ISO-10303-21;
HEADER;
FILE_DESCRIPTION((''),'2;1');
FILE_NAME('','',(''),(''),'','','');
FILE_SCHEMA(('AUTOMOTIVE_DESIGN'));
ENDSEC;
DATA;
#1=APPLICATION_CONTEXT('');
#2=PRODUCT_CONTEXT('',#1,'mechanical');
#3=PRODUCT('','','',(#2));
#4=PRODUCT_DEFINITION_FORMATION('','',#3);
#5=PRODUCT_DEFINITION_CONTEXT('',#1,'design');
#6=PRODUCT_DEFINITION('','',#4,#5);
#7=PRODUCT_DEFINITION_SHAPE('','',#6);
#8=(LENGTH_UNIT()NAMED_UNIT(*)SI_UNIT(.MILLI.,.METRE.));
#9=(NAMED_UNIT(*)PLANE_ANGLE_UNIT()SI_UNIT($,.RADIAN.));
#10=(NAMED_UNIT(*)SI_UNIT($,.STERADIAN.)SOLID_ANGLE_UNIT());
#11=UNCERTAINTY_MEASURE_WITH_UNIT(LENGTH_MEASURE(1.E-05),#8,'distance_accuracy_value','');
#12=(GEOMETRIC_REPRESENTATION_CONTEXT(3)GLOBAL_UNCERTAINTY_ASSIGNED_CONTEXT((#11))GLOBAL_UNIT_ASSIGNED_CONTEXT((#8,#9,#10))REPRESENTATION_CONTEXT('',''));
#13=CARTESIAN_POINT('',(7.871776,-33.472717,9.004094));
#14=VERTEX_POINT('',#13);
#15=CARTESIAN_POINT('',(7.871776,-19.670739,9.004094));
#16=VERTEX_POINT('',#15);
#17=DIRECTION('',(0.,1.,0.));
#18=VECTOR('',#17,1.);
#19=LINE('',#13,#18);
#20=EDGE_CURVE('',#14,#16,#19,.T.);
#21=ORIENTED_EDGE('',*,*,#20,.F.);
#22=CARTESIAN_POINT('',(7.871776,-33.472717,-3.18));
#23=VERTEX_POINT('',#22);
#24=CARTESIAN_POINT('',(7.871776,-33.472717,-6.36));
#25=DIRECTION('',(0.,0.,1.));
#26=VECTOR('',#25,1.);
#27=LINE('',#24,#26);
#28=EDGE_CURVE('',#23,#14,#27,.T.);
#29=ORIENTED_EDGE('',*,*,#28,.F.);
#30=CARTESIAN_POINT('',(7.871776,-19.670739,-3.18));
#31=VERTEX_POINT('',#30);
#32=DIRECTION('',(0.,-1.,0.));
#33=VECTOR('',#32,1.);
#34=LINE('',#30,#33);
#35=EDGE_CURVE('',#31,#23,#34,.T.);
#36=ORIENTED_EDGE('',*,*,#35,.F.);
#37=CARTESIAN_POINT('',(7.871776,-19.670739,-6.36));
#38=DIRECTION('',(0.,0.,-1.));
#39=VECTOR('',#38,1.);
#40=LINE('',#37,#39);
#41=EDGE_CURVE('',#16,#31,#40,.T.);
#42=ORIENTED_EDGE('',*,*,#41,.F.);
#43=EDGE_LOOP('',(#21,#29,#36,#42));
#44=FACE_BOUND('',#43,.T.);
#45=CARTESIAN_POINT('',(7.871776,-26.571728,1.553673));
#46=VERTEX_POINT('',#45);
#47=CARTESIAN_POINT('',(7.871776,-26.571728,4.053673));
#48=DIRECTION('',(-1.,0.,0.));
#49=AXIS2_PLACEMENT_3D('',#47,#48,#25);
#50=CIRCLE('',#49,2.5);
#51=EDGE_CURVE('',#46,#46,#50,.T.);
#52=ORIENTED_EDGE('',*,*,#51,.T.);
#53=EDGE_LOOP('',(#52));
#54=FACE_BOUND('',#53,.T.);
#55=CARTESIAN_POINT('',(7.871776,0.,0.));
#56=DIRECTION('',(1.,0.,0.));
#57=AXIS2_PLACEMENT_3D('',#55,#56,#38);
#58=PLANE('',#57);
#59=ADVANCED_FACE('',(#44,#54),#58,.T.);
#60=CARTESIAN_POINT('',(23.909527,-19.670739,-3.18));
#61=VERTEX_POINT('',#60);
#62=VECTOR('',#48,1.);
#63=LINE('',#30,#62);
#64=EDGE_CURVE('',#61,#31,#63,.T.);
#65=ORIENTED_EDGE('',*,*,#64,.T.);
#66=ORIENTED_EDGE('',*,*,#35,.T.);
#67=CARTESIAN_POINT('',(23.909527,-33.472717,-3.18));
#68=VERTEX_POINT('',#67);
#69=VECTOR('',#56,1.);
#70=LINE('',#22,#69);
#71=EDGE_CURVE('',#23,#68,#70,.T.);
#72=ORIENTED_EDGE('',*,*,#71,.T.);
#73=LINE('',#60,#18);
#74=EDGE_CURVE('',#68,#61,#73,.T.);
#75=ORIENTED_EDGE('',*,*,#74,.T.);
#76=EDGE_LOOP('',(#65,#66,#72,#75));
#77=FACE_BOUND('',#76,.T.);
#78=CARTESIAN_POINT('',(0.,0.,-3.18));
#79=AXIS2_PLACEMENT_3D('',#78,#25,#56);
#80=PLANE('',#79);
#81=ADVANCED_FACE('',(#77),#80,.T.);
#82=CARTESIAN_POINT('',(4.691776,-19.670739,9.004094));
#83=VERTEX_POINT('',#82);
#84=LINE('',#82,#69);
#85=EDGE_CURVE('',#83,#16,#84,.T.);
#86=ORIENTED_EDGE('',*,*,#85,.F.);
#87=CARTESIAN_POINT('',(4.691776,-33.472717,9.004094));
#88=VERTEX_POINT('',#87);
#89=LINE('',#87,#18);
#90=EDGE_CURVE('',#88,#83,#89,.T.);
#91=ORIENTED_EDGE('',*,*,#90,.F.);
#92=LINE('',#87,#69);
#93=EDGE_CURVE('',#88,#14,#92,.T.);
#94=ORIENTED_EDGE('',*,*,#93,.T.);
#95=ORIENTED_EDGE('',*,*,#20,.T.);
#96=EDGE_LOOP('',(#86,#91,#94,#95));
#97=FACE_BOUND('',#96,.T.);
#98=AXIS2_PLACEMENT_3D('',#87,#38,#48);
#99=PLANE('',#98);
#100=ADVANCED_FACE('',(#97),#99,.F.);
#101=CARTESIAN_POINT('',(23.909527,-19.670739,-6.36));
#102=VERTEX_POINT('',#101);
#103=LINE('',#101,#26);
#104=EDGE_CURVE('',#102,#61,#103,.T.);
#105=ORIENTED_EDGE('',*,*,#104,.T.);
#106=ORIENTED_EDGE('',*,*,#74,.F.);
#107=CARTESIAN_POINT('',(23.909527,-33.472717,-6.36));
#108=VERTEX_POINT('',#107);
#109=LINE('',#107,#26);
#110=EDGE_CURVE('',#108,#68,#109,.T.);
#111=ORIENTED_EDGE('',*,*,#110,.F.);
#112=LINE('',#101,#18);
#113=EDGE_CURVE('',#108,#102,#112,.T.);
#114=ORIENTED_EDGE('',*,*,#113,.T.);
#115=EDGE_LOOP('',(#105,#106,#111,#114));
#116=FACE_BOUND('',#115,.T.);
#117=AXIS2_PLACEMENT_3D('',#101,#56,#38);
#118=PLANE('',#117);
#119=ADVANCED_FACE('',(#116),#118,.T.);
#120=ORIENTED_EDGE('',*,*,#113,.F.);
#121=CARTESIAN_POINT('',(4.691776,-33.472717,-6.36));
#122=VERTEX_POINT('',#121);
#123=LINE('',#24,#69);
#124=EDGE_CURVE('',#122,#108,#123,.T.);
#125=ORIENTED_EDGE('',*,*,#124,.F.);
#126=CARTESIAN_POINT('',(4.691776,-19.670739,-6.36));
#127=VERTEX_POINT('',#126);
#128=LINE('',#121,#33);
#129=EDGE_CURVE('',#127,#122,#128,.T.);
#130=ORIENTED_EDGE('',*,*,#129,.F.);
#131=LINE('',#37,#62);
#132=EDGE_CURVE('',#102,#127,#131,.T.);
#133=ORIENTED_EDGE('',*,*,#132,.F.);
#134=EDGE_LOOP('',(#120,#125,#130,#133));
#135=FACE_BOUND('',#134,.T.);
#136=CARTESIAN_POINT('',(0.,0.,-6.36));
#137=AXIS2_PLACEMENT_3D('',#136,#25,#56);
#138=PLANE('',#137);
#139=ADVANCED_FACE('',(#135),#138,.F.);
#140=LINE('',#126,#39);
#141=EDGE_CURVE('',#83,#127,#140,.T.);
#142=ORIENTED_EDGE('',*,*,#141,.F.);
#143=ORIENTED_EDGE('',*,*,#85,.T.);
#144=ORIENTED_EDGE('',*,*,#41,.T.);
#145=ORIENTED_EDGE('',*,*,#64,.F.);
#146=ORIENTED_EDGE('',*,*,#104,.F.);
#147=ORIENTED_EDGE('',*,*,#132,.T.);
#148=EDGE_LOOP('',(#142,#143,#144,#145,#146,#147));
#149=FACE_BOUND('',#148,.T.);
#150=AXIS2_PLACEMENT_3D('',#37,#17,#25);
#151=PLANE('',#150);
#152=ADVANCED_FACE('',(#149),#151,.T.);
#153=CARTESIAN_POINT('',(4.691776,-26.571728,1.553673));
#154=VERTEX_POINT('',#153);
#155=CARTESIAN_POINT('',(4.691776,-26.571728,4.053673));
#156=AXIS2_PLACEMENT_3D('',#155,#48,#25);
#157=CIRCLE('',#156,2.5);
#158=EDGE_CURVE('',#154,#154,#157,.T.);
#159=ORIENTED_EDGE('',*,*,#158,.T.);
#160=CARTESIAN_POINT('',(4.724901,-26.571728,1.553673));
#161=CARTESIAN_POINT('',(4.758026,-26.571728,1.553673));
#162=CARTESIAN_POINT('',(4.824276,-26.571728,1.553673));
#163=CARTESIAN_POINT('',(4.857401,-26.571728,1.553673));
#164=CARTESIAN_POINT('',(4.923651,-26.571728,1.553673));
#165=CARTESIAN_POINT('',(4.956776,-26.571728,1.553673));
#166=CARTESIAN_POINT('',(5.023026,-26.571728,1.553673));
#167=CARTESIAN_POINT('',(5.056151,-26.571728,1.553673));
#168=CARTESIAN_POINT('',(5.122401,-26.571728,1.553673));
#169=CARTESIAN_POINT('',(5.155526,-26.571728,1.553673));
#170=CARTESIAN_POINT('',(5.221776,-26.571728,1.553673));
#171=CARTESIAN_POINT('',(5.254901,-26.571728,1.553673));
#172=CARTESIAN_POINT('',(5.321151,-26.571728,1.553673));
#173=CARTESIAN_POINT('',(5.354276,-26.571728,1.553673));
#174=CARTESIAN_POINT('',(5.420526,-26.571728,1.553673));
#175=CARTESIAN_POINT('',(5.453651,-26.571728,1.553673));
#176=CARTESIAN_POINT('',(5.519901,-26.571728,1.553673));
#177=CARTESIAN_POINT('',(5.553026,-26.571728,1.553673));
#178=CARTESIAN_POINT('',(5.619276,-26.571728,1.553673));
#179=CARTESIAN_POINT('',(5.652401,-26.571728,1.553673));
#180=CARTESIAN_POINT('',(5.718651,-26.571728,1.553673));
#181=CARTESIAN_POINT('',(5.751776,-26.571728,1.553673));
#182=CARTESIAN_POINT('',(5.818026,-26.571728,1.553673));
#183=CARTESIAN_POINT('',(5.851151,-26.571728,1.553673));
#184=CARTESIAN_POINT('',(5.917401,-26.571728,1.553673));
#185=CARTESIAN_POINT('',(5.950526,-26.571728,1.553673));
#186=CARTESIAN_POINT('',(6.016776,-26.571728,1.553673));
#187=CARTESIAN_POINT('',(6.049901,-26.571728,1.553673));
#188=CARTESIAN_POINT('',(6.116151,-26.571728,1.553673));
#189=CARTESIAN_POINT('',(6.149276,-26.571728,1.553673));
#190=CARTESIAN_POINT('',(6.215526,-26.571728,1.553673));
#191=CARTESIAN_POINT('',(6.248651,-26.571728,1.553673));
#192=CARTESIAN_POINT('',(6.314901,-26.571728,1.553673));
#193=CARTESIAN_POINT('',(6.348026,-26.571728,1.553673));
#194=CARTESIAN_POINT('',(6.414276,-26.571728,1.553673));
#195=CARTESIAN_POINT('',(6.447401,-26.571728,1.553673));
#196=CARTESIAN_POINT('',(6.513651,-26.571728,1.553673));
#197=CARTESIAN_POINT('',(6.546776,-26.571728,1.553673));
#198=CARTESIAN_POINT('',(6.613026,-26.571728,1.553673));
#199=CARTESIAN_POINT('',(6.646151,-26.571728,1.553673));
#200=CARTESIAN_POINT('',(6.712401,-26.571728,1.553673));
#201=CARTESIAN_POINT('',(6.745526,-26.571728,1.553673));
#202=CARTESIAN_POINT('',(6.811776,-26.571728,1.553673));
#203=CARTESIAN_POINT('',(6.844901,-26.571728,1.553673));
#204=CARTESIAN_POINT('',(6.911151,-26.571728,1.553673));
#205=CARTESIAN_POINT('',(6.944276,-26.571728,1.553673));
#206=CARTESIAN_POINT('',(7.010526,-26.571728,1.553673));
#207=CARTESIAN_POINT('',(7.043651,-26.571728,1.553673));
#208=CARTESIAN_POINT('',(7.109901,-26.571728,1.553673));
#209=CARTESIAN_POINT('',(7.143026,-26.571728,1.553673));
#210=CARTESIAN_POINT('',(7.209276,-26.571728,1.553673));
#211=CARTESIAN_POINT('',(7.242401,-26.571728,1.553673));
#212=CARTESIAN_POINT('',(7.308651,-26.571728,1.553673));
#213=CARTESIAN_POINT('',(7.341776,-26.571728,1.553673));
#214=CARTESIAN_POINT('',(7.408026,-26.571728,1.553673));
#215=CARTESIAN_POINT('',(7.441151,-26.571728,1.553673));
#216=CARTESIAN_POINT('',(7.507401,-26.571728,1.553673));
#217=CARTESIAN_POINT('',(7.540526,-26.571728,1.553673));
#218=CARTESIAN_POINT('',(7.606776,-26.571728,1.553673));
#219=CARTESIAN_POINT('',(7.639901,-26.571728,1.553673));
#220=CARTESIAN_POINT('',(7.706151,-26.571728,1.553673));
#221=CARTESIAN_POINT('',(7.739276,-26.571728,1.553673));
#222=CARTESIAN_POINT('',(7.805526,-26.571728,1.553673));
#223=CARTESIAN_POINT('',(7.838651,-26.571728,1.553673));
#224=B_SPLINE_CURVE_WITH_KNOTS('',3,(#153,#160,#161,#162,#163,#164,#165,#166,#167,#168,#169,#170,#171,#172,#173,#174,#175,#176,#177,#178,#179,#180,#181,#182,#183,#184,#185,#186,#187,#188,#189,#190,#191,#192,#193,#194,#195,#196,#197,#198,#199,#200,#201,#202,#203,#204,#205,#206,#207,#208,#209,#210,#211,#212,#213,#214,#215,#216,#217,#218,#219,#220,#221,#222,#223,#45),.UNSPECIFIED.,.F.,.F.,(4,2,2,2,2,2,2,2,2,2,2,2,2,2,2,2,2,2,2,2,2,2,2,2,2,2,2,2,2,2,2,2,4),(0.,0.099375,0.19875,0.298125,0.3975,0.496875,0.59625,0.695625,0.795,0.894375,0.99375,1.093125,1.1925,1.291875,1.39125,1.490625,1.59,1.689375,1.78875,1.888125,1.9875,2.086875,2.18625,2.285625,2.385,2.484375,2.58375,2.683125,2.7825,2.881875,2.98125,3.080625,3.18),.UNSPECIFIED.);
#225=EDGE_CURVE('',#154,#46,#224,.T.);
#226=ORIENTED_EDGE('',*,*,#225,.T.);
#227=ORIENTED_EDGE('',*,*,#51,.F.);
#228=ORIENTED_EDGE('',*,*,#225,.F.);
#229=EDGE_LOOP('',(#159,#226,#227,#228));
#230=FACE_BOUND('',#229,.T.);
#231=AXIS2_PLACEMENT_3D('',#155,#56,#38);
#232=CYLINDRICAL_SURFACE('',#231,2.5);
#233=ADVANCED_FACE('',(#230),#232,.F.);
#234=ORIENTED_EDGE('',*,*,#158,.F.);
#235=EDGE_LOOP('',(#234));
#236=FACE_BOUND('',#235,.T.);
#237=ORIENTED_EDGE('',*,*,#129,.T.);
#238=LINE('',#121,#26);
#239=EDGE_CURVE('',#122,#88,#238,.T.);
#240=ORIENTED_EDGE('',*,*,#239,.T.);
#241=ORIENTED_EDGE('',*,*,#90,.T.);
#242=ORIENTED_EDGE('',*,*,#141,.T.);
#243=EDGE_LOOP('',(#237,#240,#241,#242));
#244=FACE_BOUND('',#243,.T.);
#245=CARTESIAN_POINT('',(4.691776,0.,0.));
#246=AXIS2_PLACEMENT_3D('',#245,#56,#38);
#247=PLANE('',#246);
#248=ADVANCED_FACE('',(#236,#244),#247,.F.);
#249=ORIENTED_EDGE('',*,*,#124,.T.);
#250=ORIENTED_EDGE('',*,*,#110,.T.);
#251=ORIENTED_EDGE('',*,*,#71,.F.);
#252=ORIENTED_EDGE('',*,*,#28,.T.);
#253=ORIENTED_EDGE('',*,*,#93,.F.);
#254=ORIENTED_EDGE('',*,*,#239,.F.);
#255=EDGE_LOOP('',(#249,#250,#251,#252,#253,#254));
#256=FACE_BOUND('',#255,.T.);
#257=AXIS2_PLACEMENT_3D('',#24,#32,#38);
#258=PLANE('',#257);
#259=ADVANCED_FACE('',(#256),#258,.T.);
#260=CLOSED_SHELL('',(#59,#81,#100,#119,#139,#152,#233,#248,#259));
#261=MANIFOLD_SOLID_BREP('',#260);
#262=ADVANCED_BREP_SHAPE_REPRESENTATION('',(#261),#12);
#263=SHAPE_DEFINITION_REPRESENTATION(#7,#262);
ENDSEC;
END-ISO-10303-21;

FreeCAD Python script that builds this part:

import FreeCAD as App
import Part
import Sketcher

V = App.Vector


def add_polygon(sketch, points):
    """Adds a closed chain of lines whose ends are joined by coincident constraints."""
    first, n = sketch.GeometryCount, len(points)
    for a, b in zip(points, points[1:] + points[:1]):
        sketch.addGeometry(Part.LineSegment(App.Vector(*a, 0), App.Vector(*b, 0)), False)
    for i in range(n):
        sketch.addConstraint(Sketcher.Constraint("Coincident", first + i, 2, first + (i + 1) % n, 1))

doc = App.newDocument("Part")
body = doc.addObject("PartDesign::Body", "Body")

# Sketch on XY plane
sketch1 = body.newObject("Sketcher::SketchObject", "Sketch")
sketch1.AttachmentSupport = (doc.getObject("XY_Plane"), [""])
sketch1.MapMode = "FlatFace"
sketch1.AttachmentOffset = App.Placement(V(0, 0, -3.18), App.Rotation())
add_polygon(sketch1, [(8, -20), (8, -33), (24, -33), (24, -20)])  # lines 0-3
sketch1.addConstraint([
    Sketcher.Constraint("Vertical", 0),
    Sketcher.Constraint("Horizontal", 1),
    Sketcher.Constraint("Vertical", 2),
    Sketcher.Constraint("Horizontal", 3),
    Sketcher.Constraint("DistanceX", 1, 1, 1, 2, 16.037751),
    Sketcher.Constraint("DistanceY", 0, 2, 0, 1, 13.801978),
    Sketcher.Constraint("DistanceY", 2, 2, -1, 1, 19.670739),
    Sketcher.Constraint("DistanceX", -1, 1, 0, 2, 7.871776),
])
pad1 = body.newObject("PartDesign::Pad", "Pad")
pad1.Profile = sketch1
pad1.Length = 3.18
pad1.Reversed = True

# Sketch on YZ plane
sketch2 = body.newObject("Sketcher::SketchObject", "Sketch001")
sketch2.AttachmentSupport = (doc.getObject("YZ_Plane"), [""])
sketch2.MapMode = "FlatFace"
sketch2.AttachmentOffset = App.Placement(V(0, 0, 7.871776), App.Rotation())
add_polygon(sketch2, [(-19.7, -6.4), (-33.5, -6.4), (-33.5, 9), (-19.7, 9)])  # lines 0-3
sketch2.addGeometry(Part.Circle(V(-26.6, 4.1, 0), V(0, 0, 1), 2.5), False)  # 4
sketch2.addConstraint([
    Sketcher.Constraint("Horizontal", 0),
    Sketcher.Constraint("Vertical", 1),
    Sketcher.Constraint("Horizontal", 2),
    Sketcher.Constraint("Vertical", 3),
    Sketcher.Constraint("Diameter", 4, 5.0),
    Sketcher.Constraint("DistanceY", 0, 2, -1, 1, 6.36),
    Sketcher.Constraint("DistanceX", 0, 2, 0, 1, 13.801978),
    Sketcher.Constraint("DistanceY", 1, 1, 1, 2, 15.364094),
    Sketcher.Constraint("DistanceX", 2, 2, -1, 1, 19.670739),
    Sketcher.Constraint("DistanceX", 0, 2, 4, 3, 6.900989),
    Sketcher.Constraint("DistanceY", 4, 3, 1, 2, 4.950421),
])
pad2 = body.newObject("PartDesign::Pad", "Pad001")
pad2.Profile = sketch2
pad2.Length = 3.18
pad2.Reversed = True

doc.recompute()
